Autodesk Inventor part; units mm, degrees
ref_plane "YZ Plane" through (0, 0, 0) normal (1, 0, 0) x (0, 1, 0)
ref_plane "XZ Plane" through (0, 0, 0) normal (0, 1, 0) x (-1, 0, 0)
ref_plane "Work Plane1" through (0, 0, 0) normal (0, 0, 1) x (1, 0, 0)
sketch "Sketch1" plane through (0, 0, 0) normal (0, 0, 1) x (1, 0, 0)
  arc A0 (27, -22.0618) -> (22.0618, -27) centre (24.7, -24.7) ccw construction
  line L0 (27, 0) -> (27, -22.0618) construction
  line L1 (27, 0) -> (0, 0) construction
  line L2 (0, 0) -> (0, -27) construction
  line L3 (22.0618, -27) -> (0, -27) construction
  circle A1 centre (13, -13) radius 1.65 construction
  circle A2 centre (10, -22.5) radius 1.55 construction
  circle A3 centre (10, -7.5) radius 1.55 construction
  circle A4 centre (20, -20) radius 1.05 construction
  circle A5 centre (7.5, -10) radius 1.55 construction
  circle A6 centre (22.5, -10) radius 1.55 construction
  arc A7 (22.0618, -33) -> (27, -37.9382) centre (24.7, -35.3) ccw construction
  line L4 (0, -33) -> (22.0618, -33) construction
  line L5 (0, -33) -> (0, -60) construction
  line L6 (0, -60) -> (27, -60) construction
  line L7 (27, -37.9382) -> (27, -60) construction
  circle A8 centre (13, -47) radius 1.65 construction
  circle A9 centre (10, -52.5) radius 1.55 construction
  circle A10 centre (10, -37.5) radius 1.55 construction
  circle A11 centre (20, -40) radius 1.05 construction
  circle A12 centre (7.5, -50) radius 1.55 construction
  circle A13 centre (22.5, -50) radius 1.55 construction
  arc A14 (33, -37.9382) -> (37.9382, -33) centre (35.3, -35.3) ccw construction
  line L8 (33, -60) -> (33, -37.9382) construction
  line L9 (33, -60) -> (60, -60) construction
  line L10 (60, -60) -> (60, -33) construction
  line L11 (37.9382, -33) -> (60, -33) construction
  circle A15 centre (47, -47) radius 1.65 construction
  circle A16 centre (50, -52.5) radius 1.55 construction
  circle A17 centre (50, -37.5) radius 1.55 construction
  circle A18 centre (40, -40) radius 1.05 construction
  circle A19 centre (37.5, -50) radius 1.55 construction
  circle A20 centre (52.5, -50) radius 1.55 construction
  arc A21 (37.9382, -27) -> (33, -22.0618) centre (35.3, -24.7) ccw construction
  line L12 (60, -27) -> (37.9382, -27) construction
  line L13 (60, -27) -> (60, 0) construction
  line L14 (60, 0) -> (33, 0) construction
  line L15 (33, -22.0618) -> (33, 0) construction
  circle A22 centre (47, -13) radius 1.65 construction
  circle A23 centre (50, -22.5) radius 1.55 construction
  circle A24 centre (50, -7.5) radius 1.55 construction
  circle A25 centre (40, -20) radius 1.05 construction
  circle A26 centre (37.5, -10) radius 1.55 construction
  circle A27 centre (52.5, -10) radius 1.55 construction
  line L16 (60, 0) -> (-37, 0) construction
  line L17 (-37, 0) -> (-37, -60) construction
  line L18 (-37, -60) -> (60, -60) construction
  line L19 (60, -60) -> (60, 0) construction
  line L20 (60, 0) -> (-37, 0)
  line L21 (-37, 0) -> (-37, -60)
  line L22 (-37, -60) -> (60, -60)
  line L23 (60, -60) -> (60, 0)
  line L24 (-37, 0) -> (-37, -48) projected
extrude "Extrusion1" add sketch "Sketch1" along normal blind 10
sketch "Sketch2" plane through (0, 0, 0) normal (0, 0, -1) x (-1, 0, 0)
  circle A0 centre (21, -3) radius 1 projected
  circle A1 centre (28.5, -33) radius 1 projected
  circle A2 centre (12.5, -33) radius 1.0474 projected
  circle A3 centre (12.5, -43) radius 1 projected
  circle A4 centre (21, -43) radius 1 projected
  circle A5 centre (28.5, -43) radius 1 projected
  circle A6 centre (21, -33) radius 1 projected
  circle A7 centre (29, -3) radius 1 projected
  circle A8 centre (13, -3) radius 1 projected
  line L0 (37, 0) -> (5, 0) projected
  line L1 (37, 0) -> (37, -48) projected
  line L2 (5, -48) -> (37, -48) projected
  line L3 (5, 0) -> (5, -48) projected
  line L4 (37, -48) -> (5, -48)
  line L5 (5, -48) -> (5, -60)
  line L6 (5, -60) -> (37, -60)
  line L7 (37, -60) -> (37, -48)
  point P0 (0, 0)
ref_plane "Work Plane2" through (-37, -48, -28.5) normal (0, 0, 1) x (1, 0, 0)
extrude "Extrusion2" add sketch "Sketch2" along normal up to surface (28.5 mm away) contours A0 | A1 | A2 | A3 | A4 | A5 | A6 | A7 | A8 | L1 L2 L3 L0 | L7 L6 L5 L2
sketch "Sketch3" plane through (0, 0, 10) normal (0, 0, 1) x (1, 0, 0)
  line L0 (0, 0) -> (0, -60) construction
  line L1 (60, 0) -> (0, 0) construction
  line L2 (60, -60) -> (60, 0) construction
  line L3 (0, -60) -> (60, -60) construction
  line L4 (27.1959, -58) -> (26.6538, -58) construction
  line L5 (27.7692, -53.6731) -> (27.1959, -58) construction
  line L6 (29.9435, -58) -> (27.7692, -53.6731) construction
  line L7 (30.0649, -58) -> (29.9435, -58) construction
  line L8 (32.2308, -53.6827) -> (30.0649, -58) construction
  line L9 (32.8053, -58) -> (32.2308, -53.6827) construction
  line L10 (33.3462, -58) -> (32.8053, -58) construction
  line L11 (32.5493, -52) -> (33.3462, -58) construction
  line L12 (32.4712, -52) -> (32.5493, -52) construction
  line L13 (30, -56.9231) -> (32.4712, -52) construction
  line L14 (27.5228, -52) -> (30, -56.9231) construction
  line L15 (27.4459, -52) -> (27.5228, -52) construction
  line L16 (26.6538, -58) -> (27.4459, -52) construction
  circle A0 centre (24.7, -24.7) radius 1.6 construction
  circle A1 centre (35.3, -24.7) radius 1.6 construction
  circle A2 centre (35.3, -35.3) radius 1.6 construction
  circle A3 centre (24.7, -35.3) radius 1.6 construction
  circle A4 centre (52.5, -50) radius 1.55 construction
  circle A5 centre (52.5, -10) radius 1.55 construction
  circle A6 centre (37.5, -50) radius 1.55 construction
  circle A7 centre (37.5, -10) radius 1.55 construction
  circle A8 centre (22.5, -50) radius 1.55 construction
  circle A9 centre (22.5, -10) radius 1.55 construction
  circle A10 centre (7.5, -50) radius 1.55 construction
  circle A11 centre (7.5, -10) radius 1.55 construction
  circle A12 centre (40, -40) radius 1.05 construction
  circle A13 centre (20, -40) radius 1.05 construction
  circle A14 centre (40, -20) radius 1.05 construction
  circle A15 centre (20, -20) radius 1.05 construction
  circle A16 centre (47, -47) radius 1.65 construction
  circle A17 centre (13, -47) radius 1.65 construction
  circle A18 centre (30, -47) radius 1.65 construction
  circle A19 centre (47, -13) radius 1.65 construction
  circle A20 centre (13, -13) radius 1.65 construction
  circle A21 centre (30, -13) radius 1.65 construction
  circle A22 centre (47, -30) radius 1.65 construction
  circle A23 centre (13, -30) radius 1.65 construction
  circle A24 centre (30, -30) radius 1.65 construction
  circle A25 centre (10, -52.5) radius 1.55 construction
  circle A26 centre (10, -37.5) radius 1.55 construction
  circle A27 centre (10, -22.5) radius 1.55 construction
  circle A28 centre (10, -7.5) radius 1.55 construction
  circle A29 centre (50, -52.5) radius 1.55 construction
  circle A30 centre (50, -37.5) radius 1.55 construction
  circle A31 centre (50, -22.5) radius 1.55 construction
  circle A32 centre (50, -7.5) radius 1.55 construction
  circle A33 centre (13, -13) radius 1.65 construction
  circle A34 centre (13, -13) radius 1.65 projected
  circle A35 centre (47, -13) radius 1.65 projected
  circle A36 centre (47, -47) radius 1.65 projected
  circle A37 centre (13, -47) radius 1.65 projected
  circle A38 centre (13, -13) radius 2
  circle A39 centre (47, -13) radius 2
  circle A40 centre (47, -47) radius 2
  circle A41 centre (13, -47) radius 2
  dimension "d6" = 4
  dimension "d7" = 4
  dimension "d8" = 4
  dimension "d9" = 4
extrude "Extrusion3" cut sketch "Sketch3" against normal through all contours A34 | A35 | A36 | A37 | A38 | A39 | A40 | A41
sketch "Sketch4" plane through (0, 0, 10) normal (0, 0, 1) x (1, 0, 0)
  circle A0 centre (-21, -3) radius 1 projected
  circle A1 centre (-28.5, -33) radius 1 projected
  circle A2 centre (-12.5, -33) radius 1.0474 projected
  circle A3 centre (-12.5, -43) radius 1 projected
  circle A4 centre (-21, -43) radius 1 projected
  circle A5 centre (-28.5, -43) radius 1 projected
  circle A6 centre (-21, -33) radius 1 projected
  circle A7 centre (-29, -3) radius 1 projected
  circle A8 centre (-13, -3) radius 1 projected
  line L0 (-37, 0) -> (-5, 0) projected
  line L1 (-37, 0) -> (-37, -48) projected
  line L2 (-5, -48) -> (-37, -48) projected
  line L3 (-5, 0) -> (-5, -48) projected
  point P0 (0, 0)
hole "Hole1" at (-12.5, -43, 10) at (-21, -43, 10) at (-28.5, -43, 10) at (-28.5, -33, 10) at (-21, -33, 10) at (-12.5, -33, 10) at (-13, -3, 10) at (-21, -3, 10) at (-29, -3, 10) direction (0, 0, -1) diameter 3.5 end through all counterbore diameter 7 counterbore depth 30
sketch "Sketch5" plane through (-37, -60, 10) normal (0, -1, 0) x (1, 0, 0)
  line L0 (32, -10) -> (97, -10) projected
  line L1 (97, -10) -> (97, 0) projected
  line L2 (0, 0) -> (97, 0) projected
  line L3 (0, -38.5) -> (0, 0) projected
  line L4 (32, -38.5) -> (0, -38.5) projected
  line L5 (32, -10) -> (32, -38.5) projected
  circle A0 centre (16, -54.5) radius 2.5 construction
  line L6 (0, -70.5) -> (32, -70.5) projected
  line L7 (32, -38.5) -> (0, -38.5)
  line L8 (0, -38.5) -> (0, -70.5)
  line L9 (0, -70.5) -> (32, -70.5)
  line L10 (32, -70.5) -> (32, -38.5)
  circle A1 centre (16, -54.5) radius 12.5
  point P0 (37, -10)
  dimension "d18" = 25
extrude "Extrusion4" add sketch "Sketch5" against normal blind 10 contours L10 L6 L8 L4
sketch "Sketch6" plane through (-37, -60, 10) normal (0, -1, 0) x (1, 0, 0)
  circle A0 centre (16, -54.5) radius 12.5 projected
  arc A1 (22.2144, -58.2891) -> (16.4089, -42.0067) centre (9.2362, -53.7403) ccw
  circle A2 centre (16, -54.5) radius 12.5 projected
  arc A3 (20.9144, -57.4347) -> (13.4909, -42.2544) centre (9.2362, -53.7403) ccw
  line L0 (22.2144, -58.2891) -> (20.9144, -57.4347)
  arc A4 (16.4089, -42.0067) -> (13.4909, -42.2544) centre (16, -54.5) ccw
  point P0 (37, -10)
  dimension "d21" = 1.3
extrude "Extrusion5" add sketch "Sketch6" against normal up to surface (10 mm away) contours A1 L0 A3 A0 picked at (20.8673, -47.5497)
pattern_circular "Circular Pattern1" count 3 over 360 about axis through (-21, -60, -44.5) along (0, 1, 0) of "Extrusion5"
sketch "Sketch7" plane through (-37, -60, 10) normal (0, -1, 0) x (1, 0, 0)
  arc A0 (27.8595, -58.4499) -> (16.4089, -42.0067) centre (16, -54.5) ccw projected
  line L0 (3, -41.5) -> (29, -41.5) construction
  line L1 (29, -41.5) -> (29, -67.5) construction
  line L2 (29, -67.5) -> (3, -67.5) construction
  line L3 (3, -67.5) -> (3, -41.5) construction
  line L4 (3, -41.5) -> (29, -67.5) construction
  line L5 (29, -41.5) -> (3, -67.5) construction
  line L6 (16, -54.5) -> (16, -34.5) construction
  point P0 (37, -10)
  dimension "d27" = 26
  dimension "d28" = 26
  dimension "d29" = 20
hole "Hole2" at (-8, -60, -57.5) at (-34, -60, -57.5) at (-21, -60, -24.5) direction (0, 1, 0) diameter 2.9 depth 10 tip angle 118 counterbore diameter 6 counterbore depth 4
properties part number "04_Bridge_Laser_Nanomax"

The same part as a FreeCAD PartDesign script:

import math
import FreeCAD as App
import Part
import Sketcher
from FreeCAD import Vector
Q = App.Units.Quantity


def add_polygon(sketch, points):
    """Adds a closed chain of lines whose ends are joined by coincident constraints."""
    first, n = sketch.GeometryCount, len(points)
    for a, b in zip(points, points[1:] + points[:1]):
        sketch.addGeometry(Part.LineSegment(App.Vector(*a, 0), App.Vector(*b, 0)), False)
    for i in range(n):
        sketch.addConstraint(Sketcher.Constraint("Coincident", first + i, 2, first + (i + 1) % n, 1))

doc = App.newDocument("Part")
params = doc.addObject("Spreadsheet::Sheet", "Params")
for row, (alias, value) in enumerate([
    ("sketch1_width", "97 mm"),
    ("sketch1_height", "60 mm"),
    ("pad1_length", "10 mm"),
    ("sketch2_width", "32 mm"),
    ("sketch2_height", "60 mm"),
    ("pad2_length", "28.5 mm"),
    ("sketch3_diameter", "4 mm"),
    ("sketch4_diameter", "3.5 mm"),
    ("hole_diameter", "3.5 mm"),
    ("hole_cbore_diameter", "7 mm"),
    ("hole_cbore_depth", "30 mm"),
    ("sketch5_diameter", "25 mm"),
    ("sketch5_width", "32 mm"),
    ("pad3_length", "10 mm"),
    ("sketch6_radius", "12.5 mm"),
    ("pad4_length", "10 mm"),
    ("sketch7_diameter", "2.9 mm"),
    ("hole2_diameter", "2.9 mm"),
    ("hole2_depth", "10 mm"),
    ("hole2_cbore_diameter", "6 mm"),
    ("hole2_cbore_depth", "4 mm"),
], start=1):
    params.set(f"A{row}", alias)
    params.set(f"B{row}", "=" + value)
    params.setAlias(f"B{row}", alias)

body = doc.addObject("PartDesign::Body", "Body")

# Sketch on XY plane
sketch1 = body.newObject("Sketcher::SketchObject", "Sketch")
sketch1.AttachmentSupport = (doc.getObject("XY_Plane"), [""])
sketch1.MapMode = "FlatFace"
add_polygon(sketch1, [(60, -60), (60, 0), (-37, 0), (-37, -60)])  # lines 0-3
sketch1.addConstraint([
    Sketcher.Constraint("Vertical", 0),
    Sketcher.Constraint("Horizontal", 1),
    Sketcher.Constraint("Vertical", 2),
    Sketcher.Constraint("Horizontal", 3),
    Sketcher.Constraint("PointOnObject", 0, 2, -1),
    Sketcher.Constraint("DistanceX", 1, 2, 1, 1, Q("97 mm")),
    Sketcher.Constraint("DistanceY", 0, 1, 0, 2, Q("60 mm")),
    Sketcher.Constraint("DistanceX", -1, 1, 0, 2, Q("60 mm")),
])
sketch1.setExpression("Constraints[9]", "Params.sketch1_width")
sketch1.setExpression("Constraints[10]", "Params.sketch1_height")
pad1 = body.newObject("PartDesign::Pad", "Pad")
pad1.Profile = sketch1
pad1.setExpression("Length", "Params.pad1_length")

# Sketch on XY plane
sketch2 = body.newObject("Sketcher::SketchObject", "Sketch001")
sketch2.AttachmentSupport = (doc.getObject("XY_Plane"), [""])
sketch2.MapMode = "FlatFace"
add_polygon(sketch2, [(-37, 0), (-5, 0), (-5, -60), (-37, -60)])  # lines 0-3
sketch2.addConstraint([
    Sketcher.Constraint("Horizontal", 0),
    Sketcher.Constraint("Vertical", 1),
    Sketcher.Constraint("Horizontal", 2),
    Sketcher.Constraint("Vertical", 3),
    Sketcher.Constraint("PointOnObject", 0, 2, -1),
    Sketcher.Constraint("DistanceX", 0, 1, 0, 2, Q("32 mm")),
    Sketcher.Constraint("DistanceY", 1, 2, 1, 1, Q("60 mm")),
    Sketcher.Constraint("DistanceX", 0, 2, -1, 1, Q("5 mm")),
])
sketch2.setExpression("Constraints[9]", "Params.sketch2_width")
sketch2.setExpression("Constraints[10]", "Params.sketch2_height")
pad2 = body.newObject("PartDesign::Pad", "Pad001")
pad2.Profile = sketch2
pad2.setExpression("Length", "Params.pad2_length")
pad2.Reversed = True

# Sketch on XY plane
sketch3 = body.newObject("Sketcher::SketchObject", "Sketch002")
sketch3.AttachmentSupport = (doc.getObject("XY_Plane"), [""])
sketch3.MapMode = "FlatFace"
sketch3.AttachmentOffset = App.Placement(Vector(0, 0, 10), App.Rotation())
sketch3.addGeometry([
    Part.Circle(Vector(13, -13, 0), Vector(0, 0, 1), 2),
    Part.Circle(Vector(47, -13, 0), Vector(0, 0, 1), 2),
    Part.Circle(Vector(47, -47, 0), Vector(0, 0, 1), 2),
    Part.Circle(Vector(13, -47, 0), Vector(0, 0, 1), 2),
], False)
sketch3.addConstraint([
    Sketcher.Constraint("Equal", 0, 1),
    Sketcher.Constraint("Equal", 1, 2),
    Sketcher.Constraint("Equal", 2, 3),
    Sketcher.Constraint("Horizontal", 0, 3, 1, 3),
    Sketcher.Constraint("Horizontal", 2, 3, 3, 3),
    Sketcher.Constraint("Vertical", 1, 3, 2, 3),
    Sketcher.Constraint("Vertical", 0, 3, 3, 3),
    Sketcher.Constraint("Diameter", 0, Q("4 mm")),
    Sketcher.Constraint("DistanceX", -1, 1, 0, 3, Q("13 mm")),
    Sketcher.Constraint("DistanceY", 0, 3, -1, 1, Q("13 mm")),
    Sketcher.Constraint("DistanceX", -1, 1, 1, 3, Q("47 mm")),
    Sketcher.Constraint("DistanceY", 2, 3, -1, 1, Q("47 mm")),
])
sketch3.setExpression("Constraints[7]", "Params.sketch3_diameter")
pocket1 = body.newObject("PartDesign::Pocket", "Pocket")
pocket1.Profile = sketch3
pocket1.Type = "ThroughAll"

# Sketch on XY plane
sketch4 = body.newObject("Sketcher::SketchObject", "Sketch003")
sketch4.AttachmentSupport = (doc.getObject("XY_Plane"), [""])
sketch4.MapMode = "FlatFace"
sketch4.AttachmentOffset = App.Placement(Vector(0, 0, 10), App.Rotation())
sketch4.addGeometry([
    Part.Circle(Vector(-12.5, -43, 0), Vector(0, 0, 1), 1.8),  # 0
    Part.Circle(Vector(-21, -43, 0), Vector(0, 0, 1), 1.8),  # 1
    Part.Circle(Vector(-28.5, -43, 0), Vector(0, 0, 1), 1.8),  # 2
    Part.Circle(Vector(-28.5, -33, 0), Vector(0, 0, 1), 1.8),  # 3
    Part.Circle(Vector(-21, -33, 0), Vector(0, 0, 1), 1.8),  # 4
    Part.Circle(Vector(-12.5, -33, 0), Vector(0, 0, 1), 1.8),  # 5
    Part.Circle(Vector(-13, -3, 0), Vector(0, 0, 1), 1.8),  # 6
    Part.Circle(Vector(-21, -3, 0), Vector(0, 0, 1), 1.8),  # 7
    Part.Circle(Vector(-29, -3, 0), Vector(0, 0, 1), 1.8),  # 8
], False)
sketch4.addConstraint([
    Sketcher.Constraint("Equal", 0, 1),
    Sketcher.Constraint("Equal", 1, 2),
    Sketcher.Constraint("Equal", 2, 3),
    Sketcher.Constraint("Equal", 3, 4),
    Sketcher.Constraint("Equal", 4, 5),
    Sketcher.Constraint("Equal", 5, 6),
    Sketcher.Constraint("Equal", 6, 7),
    Sketcher.Constraint("Equal", 7, 8),
    Sketcher.Constraint("Horizontal", 0, 3, 1, 3),
    Sketcher.Constraint("Horizontal", 1, 3, 2, 3),
    Sketcher.Constraint("Horizontal", 3, 3, 4, 3),
    Sketcher.Constraint("Horizontal", 4, 3, 5, 3),
    Sketcher.Constraint("Horizontal", 6, 3, 7, 3),
    Sketcher.Constraint("Horizontal", 7, 3, 8, 3),
    Sketcher.Constraint("Vertical", 2, 3, 3, 3),
    Sketcher.Constraint("Vertical", 1, 3, 4, 3),
    Sketcher.Constraint("Vertical", 0, 3, 5, 3),
    Sketcher.Constraint("Vertical", 4, 3, 7, 3),
    Sketcher.Constraint("Diameter", 0, Q("3.5 mm")),
    Sketcher.Constraint("DistanceY", 0, 3, -1, 1, Q("43 mm")),
    Sketcher.Constraint("DistanceX", 1, 3, -1, 1, Q("21 mm")),
    Sketcher.Constraint("DistanceY", 3, 3, -1, 1, Q("33 mm")),
    Sketcher.Constraint("DistanceX", 6, 3, -1, 1, Q("13 mm")),
    Sketcher.Constraint("DistanceY", 6, 3, -1, 1, Q("3 mm")),
    Sketcher.Constraint("DistanceX", 8, 3, -1, 1, Q("29 mm")),
    Sketcher.Constraint("DistanceX", 2, 3, 0, 3, Q("16 mm")),
    Sketcher.Constraint("DistanceX", 0, 3, -1, 1, Q("12.5 mm")),
])
sketch4.setExpression("Constraints[18]", "Params.sketch4_diameter")
doc.recompute()
hole = body.newObject("PartDesign::Hole", "Hole")
hole.Profile = sketch4
hole.ThreadType = "None"
hole.setExpression("Diameter", "Params.hole_diameter")
hole.DepthType = "ThroughAll"
hole.HoleCutType = "Counterbore"
hole.setExpression("HoleCutDiameter", "Params.hole_cbore_diameter")
hole.setExpression("HoleCutDepth", "Params.hole_cbore_depth")

# Sketch on XZ plane
sketch5 = body.newObject("Sketcher::SketchObject", "Sketch004")
sketch5.AttachmentSupport = (doc.getObject("XZ_Plane"), [""])
sketch5.MapMode = "FlatFace"
sketch5.AttachmentOffset = App.Placement(Vector(0, 0, 60), App.Rotation())
add_polygon(sketch5, [(-5, -60), (-5, -28), (-37, -28), (-37, -60)])  # lines 0-3
sketch5.addGeometry(Part.Circle(Vector(-21, -44, 0), Vector(0, 0, 1), 12), False)  # 4
sketch5.addConstraint([
    Sketcher.Constraint("Vertical", 0),
    Sketcher.Constraint("Horizontal", 1),
    Sketcher.Constraint("Vertical", 2),
    Sketcher.Constraint("Horizontal", 3),
    Sketcher.Constraint("Equal", 3, 0),
    Sketcher.Constraint("Diameter", 4, Q("25 mm")),
    Sketcher.Constraint("DistanceX", 1, 2, 1, 1, Q("32 mm")),
    Sketcher.Constraint("DistanceX", 4, 3, -1, 1, Q("21 mm")),
    Sketcher.Constraint("DistanceX", 0, 2, -1, 1, Q("5 mm")),
    Sketcher.Constraint("DistanceY", 4, 3, 0, 2, Q("16 mm")),
    Sketcher.Constraint("DistanceY", 4, 3, -1, 1, Q("44.5 mm")),
])
sketch5.setExpression("Constraints[9]", "Params.sketch5_diameter")
sketch5.setExpression("Constraints[10]", "Params.sketch5_width")
pad3 = body.newObject("PartDesign::Pad", "Pad002")
pad3.Profile = sketch5
pad3.setExpression("Length", "Params.pad3_length")
pad3.Reversed = True

# Sketch on XZ plane
sketch6 = body.newObject("Sketcher::SketchObject", "Sketch005")
sketch6.AttachmentSupport = (doc.getObject("XZ_Plane"), [""])
sketch6.MapMode = "FlatFace"
sketch6.AttachmentOffset = App.Placement(Vector(0, 0, 60), App.Rotation())
sketch6.addGeometry([
    Part.ArcOfCircle(Part.Circle(Vector(-27.8, -43.7, 0), Vector(0, 0, 1), 13.8), math.radians(-19), math.radians(59)),
    Part.ArcOfCircle(Part.Circle(Vector(-21, -44.5, 0), Vector(0, 0, 1), 12.5), math.radians(88.13), math.radians(101.58)),
    Part.ArcOfCircle(Part.Circle(Vector(-27.8, -43.7, 0), Vector(0, 0, 1), 12.2), math.radians(-18), math.radians(70)),
    Part.LineSegment(Vector(-16.1, -47.4, 0), Vector(-14.8, -48.3, 0)),
], False)
sketch6.addConstraint([
    Sketcher.Constraint("Coincident", 0, 2, 1, 1),
    Sketcher.Constraint("Coincident", 1, 2, 2, 2),
    Sketcher.Constraint("Coincident", 2, 1, 3, 1),
    Sketcher.Constraint("Coincident", 3, 2, 0, 1),
    Sketcher.Constraint("Coincident", 2, 3, 0, 3),
    Sketcher.Constraint("Radius", 1, Q("12.5 mm")),
    Sketcher.Constraint("DistanceX", 2, 1, 3, 2, Q("1.3 mm")),
    Sketcher.Constraint("DistanceX", 1, 3, -1, 1, Q("21 mm")),
    Sketcher.Constraint("DistanceY", 1, 3, -1, 1, Q("44.5 mm")),
    Sketcher.Constraint("Radius", 0, Q("13.7523 mm")),
    Sketcher.Constraint("Radius", 2, Q("12.2486 mm")),
    Sketcher.Constraint("DistanceX", 0, 2, -1, 1, Q("20.591 mm")),
    Sketcher.Constraint("DistanceX", 1, 2, -1, 1, Q("23.509 mm")),
    Sketcher.Constraint("DistanceY", 3, 2, -1, 1, Q("48.289 mm")),
])
sketch6.setExpression("Constraints[5]", "Params.sketch6_radius")
pad4 = body.newObject("PartDesign::Pad", "Pad003")
pad4.Profile = sketch6
pad4.setExpression("Length", "Params.pad4_length")
pad4.Reversed = True
doc.recompute()

datumline = body.newObject("PartDesign::Line", "DatumLine")
datumline.Placement = App.Placement(Vector(-21, 0, -44.5), App.Rotation(Vector(0, 0, 1), Vector(0, 1, 0)))
polarpattern = body.newObject("PartDesign::PolarPattern", "PolarPattern")
polarpattern.Originals = [pad4]
polarpattern.Axis = (datumline, [""])
polarpattern.Angle = 360
polarpattern.Occurrences = 3
body.Tip = polarpattern

# Sketch on XZ plane
sketch7 = body.newObject("Sketcher::SketchObject", "Sketch006")
sketch7.AttachmentSupport = (doc.getObject("XZ_Plane"), [""])
sketch7.MapMode = "FlatFace"
sketch7.AttachmentOffset = App.Placement(Vector(0, 0, 60), App.Rotation())
sketch7.addGeometry([
    Part.Circle(Vector(-8, -57.5, 0), Vector(0, 0, 1), 1.4),
    Part.Circle(Vector(-34, -57.5, 0), Vector(0, 0, 1), 1.4),
    Part.Circle(Vector(-21, -24.5, 0), Vector(0, 0, 1), 1.4),
], False)
sketch7.addConstraint([
    Sketcher.Constraint("Equal", 0, 1),
    Sketcher.Constraint("Equal", 1, 2),
    Sketcher.Constraint("Horizontal", 0, 3, 1, 3),
    Sketcher.Constraint("Diameter", 0, Q("2.9 mm")),
    Sketcher.Constraint("DistanceX", 0, 3, -1, 1, Q("8 mm")),
    Sketcher.Constraint("DistanceX", 1, 3, -1, 1, Q("34 mm")),
    Sketcher.Constraint("DistanceX", 2, 3, -1, 1, Q("21 mm")),
    Sketcher.Constraint("DistanceY", 0, 3, 2, 3, Q("33 mm")),
    Sketcher.Constraint("DistanceY", 0, 3, -1, 1, Q("57.5 mm")),
])
sketch7.setExpression("Constraints[3]", "Params.sketch7_diameter")
doc.recompute()
hole2 = body.newObject("PartDesign::Hole", "Hole001")
hole2.Profile = sketch7
hole2.ThreadType = "None"
hole2.setExpression("Diameter", "Params.hole2_diameter")
hole2.DepthType = "Dimension"
hole2.setExpression("Depth", "Params.hole2_depth")
hole2.DrillPoint = "Angled"
hole2.DrillPointAngle = 118
hole2.HoleCutType = "Counterbore"
hole2.setExpression("HoleCutDiameter", "Params.hole2_cbore_diameter")
hole2.setExpression("HoleCutDepth", "Params.hole2_cbore_depth")

doc.recompute()
